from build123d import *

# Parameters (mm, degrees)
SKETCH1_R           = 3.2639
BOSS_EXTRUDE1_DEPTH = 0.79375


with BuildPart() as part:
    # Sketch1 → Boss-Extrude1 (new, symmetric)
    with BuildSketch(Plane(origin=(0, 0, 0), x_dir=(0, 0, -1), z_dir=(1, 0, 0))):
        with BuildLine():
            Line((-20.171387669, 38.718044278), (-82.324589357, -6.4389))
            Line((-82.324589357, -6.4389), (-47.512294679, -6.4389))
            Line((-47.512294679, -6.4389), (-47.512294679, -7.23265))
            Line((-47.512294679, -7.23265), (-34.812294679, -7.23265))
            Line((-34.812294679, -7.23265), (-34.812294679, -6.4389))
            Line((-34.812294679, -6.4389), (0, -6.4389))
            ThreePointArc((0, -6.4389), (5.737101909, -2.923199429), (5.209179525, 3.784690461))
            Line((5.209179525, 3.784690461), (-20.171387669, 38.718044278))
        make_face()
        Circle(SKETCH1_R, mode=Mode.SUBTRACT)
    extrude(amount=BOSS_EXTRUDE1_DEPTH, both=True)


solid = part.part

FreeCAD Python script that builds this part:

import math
import FreeCAD as App
import Part
import Sketcher
from FreeCAD import Vector
Q = App.Units.Quantity

doc = App.newDocument("Part")
body = doc.addObject("PartDesign::Body", "Body")

sketch1 = doc.addObject("Sketcher::SketchObject", "Sketch")
body.addObject(sketch1)
sketch1.AttachmentSupport = (doc.YZ_Plane, [""])
sketch1.MapMode = "FlatFace"
sketch1.addGeometry(Part.LineSegment(Vector(38.718044, 20.171388, 0), Vector(-6.4389, 82.324589, 0)), False)
sketch1.addGeometry(Part.LineSegment(Vector(-6.4389, 82.324589, 0), Vector(-6.4389, 47.512295, 0)), False)
sketch1.addGeometry(Part.LineSegment(Vector(-6.4389, 47.512295, 0), Vector(-7.23265, 47.512295, 0)), False)
sketch1.addGeometry(Part.LineSegment(Vector(-7.23265, 47.512295, 0), Vector(-7.23265, 34.812295, 0)), False)
sketch1.addGeometry(Part.LineSegment(Vector(-7.23265, 34.812295, 0), Vector(-6.4389, 34.812295, 0)), False)
sketch1.addGeometry(Part.LineSegment(Vector(-6.4389, 34.812295, 0), Vector(-6.4389, 0, 0)), False)
sketch1.addGeometry(Part.ArcOfCircle(Part.Circle(Vector(0, 0, 0), Vector(0, 0, 1), 6.4389), math.radians(180), math.radians(306)), False)
sketch1.addGeometry(Part.LineSegment(Vector(3.78469, -5.20918, 0), Vector(38.718044, 20.171388, 0)), False)
sketch1.addGeometry(Part.Circle(Vector(0, 0, 0), Vector(0, 0, 1), 3.2639), False)
sketch1.addConstraint(Sketcher.Constraint("Coincident", 0, 2, 1, 1))
sketch1.addConstraint(Sketcher.Constraint("Coincident", 1, 2, 2, 1))
sketch1.addConstraint(Sketcher.Constraint("Coincident", 2, 2, 3, 1))
sketch1.addConstraint(Sketcher.Constraint("Coincident", 3, 2, 4, 1))
sketch1.addConstraint(Sketcher.Constraint("Coincident", 4, 2, 5, 1))
sketch1.addConstraint(Sketcher.Constraint("Tangent", 5, 2, 6, 1))
sketch1.addConstraint(Sketcher.Constraint("Tangent", 6, 2, 7, 1))
sketch1.addConstraint(Sketcher.Constraint("Coincident", 7, 2, 0, 1))
sketch1.addConstraint(Sketcher.Constraint("Vertical", 1))
sketch1.addConstraint(Sketcher.Constraint("Horizontal", 2))
sketch1.addConstraint(Sketcher.Constraint("Vertical", 3))
sketch1.addConstraint(Sketcher.Constraint("Horizontal", 4))
sketch1.addConstraint(Sketcher.Constraint("Vertical", 5))
sketch1.addConstraint(Sketcher.Constraint("Coincident", 6, 3, -1, 1))
sketch1.addConstraint(Sketcher.Constraint("Coincident", 8, 3, -1, 1))
sketch1.addConstraint(Sketcher.Constraint("Perpendicular", 0, 7))
sketch1.addConstraint(Sketcher.Constraint("Vertical", 1, 2, 4, 2))
sketch1.addConstraint(Sketcher.Constraint("Equal", 1, 5))
sketch1.addConstraint(Sketcher.Constraint("Diameter", 8, Q("0.257 in")))
sketch1.addConstraint(Sketcher.Constraint("DistanceY", 3, 2, 3, 1, Q("0.5 in")))
sketch1.addConstraint(Sketcher.Constraint("Angle", 0, Q("126 deg")))
sketch1.addConstraint(Sketcher.Constraint("Distance", 7, Q("1.7 in")))
sketch1.addConstraint(Sketcher.Constraint("Radius", 6, Q("0.2535 in")))
sketch1.addConstraint(Sketcher.Constraint("DistanceX", 2, 2, 2, 1, Q("0.03125 in")))
pad1 = doc.addObject("PartDesign::Pad", "Pad")
body.addObject(pad1)
pad1.Profile = sketch1
pad1.Length = Q("0.0625 in")
pad1.Midplane = True

doc.recompute()
